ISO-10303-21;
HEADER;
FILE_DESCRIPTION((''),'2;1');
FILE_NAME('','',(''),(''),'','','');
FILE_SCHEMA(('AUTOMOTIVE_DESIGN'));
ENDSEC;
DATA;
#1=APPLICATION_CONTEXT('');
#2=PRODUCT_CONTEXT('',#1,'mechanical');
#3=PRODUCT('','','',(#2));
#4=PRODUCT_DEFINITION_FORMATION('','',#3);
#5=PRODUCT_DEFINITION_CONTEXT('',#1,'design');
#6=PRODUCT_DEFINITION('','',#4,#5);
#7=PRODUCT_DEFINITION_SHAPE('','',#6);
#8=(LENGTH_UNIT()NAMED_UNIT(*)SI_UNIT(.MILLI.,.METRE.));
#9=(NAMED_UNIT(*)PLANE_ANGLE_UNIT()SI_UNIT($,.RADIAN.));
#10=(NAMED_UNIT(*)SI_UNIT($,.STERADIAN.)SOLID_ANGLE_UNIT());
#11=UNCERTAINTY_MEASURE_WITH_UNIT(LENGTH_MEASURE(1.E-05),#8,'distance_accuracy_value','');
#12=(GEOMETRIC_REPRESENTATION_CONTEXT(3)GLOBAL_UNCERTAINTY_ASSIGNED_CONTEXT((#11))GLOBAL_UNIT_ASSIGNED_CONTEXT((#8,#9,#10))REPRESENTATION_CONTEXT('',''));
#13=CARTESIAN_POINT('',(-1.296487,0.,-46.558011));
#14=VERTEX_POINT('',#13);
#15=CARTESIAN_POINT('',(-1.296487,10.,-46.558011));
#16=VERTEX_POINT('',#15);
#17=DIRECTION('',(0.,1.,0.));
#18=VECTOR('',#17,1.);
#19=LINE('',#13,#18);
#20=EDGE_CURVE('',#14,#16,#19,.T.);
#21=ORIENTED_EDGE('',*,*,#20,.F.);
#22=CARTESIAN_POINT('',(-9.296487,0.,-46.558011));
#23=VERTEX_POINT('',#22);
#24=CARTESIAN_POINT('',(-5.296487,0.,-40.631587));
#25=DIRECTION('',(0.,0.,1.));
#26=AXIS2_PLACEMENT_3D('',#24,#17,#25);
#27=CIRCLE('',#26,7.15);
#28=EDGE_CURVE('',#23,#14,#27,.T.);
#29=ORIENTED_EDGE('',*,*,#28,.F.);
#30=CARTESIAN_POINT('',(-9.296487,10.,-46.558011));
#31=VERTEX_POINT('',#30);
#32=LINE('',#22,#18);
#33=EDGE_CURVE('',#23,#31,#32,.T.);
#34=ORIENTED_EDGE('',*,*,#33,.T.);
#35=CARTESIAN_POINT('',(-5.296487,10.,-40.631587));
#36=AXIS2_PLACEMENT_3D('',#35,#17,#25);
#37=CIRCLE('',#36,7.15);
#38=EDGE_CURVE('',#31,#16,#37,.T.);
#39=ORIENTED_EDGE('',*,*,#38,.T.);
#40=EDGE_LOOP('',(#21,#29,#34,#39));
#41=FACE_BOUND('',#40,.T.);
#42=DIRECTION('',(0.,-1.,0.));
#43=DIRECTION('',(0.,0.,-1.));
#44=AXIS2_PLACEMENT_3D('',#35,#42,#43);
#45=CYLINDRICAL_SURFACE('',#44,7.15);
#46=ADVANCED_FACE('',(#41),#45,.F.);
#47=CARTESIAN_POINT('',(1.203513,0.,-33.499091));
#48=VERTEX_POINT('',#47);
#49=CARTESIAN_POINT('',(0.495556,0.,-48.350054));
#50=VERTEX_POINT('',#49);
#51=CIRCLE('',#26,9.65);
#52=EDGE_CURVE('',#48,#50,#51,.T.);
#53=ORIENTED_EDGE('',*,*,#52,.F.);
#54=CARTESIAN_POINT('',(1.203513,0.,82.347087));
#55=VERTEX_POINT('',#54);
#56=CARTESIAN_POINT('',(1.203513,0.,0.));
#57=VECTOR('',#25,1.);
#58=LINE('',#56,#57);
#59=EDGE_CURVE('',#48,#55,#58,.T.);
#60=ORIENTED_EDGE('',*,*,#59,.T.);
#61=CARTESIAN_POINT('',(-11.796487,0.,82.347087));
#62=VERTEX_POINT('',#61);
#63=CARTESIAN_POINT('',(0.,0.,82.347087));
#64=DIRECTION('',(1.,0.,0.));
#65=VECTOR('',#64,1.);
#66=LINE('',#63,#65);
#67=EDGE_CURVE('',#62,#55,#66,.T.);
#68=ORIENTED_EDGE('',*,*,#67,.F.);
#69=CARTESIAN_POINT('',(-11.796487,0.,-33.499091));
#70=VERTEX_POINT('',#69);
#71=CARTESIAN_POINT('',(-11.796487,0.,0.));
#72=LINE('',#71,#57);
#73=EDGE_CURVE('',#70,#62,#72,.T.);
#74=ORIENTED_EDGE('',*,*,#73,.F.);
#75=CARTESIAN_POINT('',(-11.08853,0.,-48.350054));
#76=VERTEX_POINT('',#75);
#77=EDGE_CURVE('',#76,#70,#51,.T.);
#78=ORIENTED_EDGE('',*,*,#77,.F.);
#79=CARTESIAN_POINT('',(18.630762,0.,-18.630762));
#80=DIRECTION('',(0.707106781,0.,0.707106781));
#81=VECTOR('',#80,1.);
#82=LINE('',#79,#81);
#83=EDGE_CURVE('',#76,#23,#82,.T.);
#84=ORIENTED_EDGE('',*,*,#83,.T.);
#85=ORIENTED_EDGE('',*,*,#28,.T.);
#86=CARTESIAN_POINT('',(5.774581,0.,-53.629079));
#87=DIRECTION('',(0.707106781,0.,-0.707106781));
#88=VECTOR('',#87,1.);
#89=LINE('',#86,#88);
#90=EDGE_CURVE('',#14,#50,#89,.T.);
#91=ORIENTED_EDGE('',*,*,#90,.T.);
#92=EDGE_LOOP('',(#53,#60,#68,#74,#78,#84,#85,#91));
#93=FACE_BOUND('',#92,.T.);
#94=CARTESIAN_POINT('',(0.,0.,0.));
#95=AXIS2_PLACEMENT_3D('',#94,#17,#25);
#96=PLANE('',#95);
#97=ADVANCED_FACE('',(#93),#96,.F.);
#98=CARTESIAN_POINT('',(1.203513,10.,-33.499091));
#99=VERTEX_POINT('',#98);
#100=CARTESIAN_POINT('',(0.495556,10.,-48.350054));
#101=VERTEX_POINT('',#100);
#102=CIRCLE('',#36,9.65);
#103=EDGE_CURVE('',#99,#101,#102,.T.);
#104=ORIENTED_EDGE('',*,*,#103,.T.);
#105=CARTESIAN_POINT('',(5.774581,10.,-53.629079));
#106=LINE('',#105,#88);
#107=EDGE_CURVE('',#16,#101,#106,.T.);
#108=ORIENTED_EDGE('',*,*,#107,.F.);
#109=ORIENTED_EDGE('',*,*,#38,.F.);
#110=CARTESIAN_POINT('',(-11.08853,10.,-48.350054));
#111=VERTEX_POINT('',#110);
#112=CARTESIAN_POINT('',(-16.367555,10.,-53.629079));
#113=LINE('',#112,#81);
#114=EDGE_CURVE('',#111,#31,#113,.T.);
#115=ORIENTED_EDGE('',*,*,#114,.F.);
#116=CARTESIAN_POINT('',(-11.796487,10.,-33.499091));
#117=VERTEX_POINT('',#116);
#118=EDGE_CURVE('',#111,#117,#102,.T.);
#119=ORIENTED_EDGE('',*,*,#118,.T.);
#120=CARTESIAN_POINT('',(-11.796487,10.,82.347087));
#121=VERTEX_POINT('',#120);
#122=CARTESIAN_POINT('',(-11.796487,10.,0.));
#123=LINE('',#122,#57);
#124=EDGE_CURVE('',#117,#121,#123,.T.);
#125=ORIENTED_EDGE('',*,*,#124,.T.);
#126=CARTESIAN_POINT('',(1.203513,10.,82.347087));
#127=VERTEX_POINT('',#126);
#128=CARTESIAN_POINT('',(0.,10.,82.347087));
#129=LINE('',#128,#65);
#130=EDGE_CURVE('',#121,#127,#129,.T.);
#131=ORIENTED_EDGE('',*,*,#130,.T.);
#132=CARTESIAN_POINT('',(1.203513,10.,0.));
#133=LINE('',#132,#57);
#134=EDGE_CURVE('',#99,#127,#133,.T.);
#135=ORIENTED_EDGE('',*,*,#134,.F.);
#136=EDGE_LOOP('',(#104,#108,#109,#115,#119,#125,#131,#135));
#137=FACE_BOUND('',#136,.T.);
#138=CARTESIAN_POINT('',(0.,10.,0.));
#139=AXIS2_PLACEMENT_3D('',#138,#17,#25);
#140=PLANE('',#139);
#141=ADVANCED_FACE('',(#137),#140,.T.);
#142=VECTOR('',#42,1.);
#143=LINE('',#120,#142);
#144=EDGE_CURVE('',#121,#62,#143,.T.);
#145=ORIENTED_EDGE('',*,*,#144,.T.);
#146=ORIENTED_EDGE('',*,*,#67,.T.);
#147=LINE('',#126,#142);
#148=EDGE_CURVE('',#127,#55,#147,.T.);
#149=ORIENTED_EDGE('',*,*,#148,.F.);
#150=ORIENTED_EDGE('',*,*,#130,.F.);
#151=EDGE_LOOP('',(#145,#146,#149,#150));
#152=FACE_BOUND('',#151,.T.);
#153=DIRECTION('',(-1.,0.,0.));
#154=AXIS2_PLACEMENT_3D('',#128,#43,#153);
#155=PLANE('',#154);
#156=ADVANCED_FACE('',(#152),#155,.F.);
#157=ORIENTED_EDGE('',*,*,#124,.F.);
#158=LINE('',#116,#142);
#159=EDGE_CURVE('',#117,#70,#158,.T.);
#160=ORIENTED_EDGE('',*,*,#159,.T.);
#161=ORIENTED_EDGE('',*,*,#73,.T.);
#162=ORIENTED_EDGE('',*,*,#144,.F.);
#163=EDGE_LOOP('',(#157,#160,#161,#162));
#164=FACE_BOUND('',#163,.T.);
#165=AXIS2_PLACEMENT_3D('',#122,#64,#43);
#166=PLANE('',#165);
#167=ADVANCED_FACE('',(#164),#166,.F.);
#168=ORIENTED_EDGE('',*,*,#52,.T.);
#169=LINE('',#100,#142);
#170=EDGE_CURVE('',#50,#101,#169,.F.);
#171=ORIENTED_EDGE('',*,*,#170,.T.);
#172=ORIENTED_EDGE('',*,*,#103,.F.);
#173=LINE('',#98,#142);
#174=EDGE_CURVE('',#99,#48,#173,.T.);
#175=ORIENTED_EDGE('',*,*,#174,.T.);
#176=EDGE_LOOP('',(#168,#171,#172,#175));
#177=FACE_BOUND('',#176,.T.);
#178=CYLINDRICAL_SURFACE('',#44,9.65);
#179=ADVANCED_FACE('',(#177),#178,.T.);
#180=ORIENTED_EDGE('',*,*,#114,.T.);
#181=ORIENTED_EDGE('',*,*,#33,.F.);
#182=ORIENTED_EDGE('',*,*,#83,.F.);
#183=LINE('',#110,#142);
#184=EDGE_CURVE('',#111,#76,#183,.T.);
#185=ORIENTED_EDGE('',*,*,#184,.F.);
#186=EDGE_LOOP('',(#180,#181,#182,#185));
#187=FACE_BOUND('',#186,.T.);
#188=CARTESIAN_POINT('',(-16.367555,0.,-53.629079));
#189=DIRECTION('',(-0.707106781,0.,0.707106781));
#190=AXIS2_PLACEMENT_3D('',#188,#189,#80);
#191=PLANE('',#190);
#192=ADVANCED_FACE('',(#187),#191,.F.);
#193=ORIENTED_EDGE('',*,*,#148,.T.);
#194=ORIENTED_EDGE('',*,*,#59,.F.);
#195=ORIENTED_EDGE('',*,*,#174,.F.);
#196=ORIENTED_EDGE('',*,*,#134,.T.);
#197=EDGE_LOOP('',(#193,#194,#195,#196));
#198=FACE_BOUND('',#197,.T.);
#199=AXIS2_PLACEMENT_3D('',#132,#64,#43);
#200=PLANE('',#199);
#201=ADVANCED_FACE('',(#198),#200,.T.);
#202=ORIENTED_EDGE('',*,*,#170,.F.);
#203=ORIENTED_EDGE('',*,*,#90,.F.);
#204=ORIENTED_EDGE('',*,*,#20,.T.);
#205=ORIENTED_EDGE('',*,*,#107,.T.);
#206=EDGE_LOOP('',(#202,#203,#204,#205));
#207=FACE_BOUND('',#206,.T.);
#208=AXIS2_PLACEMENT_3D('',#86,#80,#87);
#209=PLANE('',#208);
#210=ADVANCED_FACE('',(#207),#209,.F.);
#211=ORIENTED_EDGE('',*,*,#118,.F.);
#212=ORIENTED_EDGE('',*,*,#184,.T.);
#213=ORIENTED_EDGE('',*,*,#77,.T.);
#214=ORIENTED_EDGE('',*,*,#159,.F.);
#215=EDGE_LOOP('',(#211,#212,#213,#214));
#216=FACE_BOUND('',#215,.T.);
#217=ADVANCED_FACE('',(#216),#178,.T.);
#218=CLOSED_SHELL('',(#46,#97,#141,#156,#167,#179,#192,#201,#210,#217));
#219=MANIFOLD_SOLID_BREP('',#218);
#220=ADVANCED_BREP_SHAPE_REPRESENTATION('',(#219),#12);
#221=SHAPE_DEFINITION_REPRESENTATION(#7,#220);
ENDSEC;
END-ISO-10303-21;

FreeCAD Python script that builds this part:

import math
import FreeCAD as App
import Part
import Sketcher
from FreeCAD import Vector


def add_polygon(sketch, points):
    """Adds a closed chain of lines whose ends are joined by coincident constraints."""
    first, n = sketch.GeometryCount, len(points)
    for a, b in zip(points, points[1:] + points[:1]):
        sketch.addGeometry(Part.LineSegment(App.Vector(*a, 0), App.Vector(*b, 0)), False)
    for i in range(n):
        sketch.addConstraint(Sketcher.Constraint("Coincident", first + i, 2, first + (i + 1) % n, 1))

doc = App.newDocument("Part")
params = doc.addObject("Spreadsheet::Sheet", "Params")
for row, (alias, value) in enumerate([
    ("sketch1_width", "13 mm"),
    ("sketch1_radius", "9.65 mm"),
    ("sketch1_radius2", "7.15 mm"),
    ("pad1_length", "10 mm"),
    ("sketch2_width", "8 mm"),
    ("sketch2_length", "10 mm"),
], start=1):
    params.set(f"A{row}", alias)
    params.set(f"B{row}", "=" + value)
    params.setAlias(f"B{row}", alias)

body = doc.addObject("PartDesign::Body", "Body")

# Sketch on XZ plane
sketch1 = body.newObject("Sketcher::SketchObject", "Sketch")
sketch1.AttachmentSupport = (doc.getObject("XZ_Plane"), [""])
sketch1.MapMode = "FlatFace"
sketch1.addGeometry([
    Part.LineSegment(Vector(1.2, 82.3, 0), Vector(1.2, -33.5, 0)),  # 0
    Part.ArcOfCircle(Part.Circle(Vector(-5.3, -40.6, 0), Vector(0, 0, 1), 9.7), math.radians(0), math.radians(48)),  # 1
    Part.ArcOfCircle(Part.Circle(Vector(-5.3, -40.6, 0), Vector(0, 0, 1), 9.7), math.radians(132), math.radians(360)),  # 2
    Part.LineSegment(Vector(-11.8, -33.5, 0), Vector(-11.8, 82.3, 0)),  # 3
    Part.LineSegment(Vector(-11.8, 82.3, 0), Vector(1.2, 82.3, 0)),  # 4
    Part.ArcOfCircle(Part.Circle(Vector(-5.3, -40.6, 0), Vector(0, 0, 1), 7.1), math.radians(25), math.radians(155)),  # 5
    Part.ArcOfCircle(Part.Circle(Vector(-5.3, -40.6, 0), Vector(0, 0, 1), 7.2), math.radians(155), math.radians(360)),  # 6
    Part.ArcOfCircle(Part.Circle(Vector(-5.3, -40.6, 0), Vector(0, 0, 1), 7.1), math.radians(0), math.radians(25)),  # 7
], False)
sketch1.addConstraint([
    Sketcher.Constraint("Coincident", 0, 2, 1, 2),
    Sketcher.Constraint("Tangent", 1, 1, 2, 2),
    Sketcher.Constraint("Coincident", 2, 1, 3, 1),
    Sketcher.Constraint("Coincident", 3, 2, 4, 1),
    Sketcher.Constraint("Coincident", 4, 2, 0, 1),
    Sketcher.Constraint("Tangent", 5, 2, 6, 1),
    Sketcher.Constraint("Tangent", 6, 2, 7, 1),
    Sketcher.Constraint("Tangent", 7, 2, 5, 1),
    Sketcher.Constraint("Vertical", 0),
    Sketcher.Constraint("Vertical", 3),
    Sketcher.Constraint("Horizontal", 4),
    Sketcher.Constraint("Coincident", 5, 3, 1, 3),
    Sketcher.Constraint("Equal", 1, 2),
    Sketcher.Constraint("Horizontal", 7, 3, 1, 1),
    Sketcher.Constraint("Horizontal", 0, 2, 2, 1),
    Sketcher.Constraint("Horizontal", 1, 1, 6, 2),
    Sketcher.Constraint("Horizontal", 5, 2, 7, 2),
    Sketcher.Constraint("Vertical", 3, 2, 5, 2),
    Sketcher.Constraint("DistanceX", 4, 1, 4, 2, 13.0),
    Sketcher.Constraint("Radius", 1, 9.65),
    Sketcher.Constraint("Radius", 5, 7.15),
    Sketcher.Constraint("DistanceY", 0, 2, 0, 1, 115.846178),
    Sketcher.Constraint("DistanceY", 0, 2, -1, 1, 33.499091),
    Sketcher.Constraint("DistanceX", 1, 3, -1, 1, 5.296487),
])
sketch1.setExpression("Constraints[18]", "Params.sketch1_width")
sketch1.setExpression("Constraints[19]", "Params.sketch1_radius")
sketch1.setExpression("Constraints[20]", "Params.sketch1_radius2")
pad1 = body.newObject("PartDesign::Pad", "Pad")
pad1.Profile = sketch1
pad1.setExpression("Length", "Params.pad1_length")
pad1.Reversed = True

# Sketch on XZ plane
sketch2 = body.newObject("Sketcher::SketchObject", "Sketch001")
sketch2.AttachmentSupport = (doc.getObject("XZ_Plane"), [""])
sketch2.MapMode = "FlatFace"
sketch2.AttachmentOffset = App.Placement(Vector(0, 0, -10), App.Rotation())
add_polygon(sketch2, [(6, -54), (-16, -54), (-9, -47), (-1, -47)])  # lines 0-3
sketch2.addConstraint([
    Sketcher.Constraint("Horizontal", 0),
    Sketcher.Constraint("Horizontal", 2),
    Sketcher.Constraint("Perpendicular", 1, 3),
    Sketcher.Constraint("Equal", 1, 3),
    Sketcher.Constraint("DistanceX", 2, 1, 2, 2, 8.0),
    Sketcher.Constraint("Distance", 1, 10.0),
    Sketcher.Constraint("DistanceY", 0, 2, -1, 1, 53.629079),
    Sketcher.Constraint("DistanceX", -1, 1, 3, 2, 5.774581),
])
sketch2.setExpression("Constraints[8]", "Params.sketch2_width")
sketch2.setExpression("Constraints[9]", "Params.sketch2_length")
pocket1 = body.newObject("PartDesign::Pocket", "Pocket")
pocket1.Profile = sketch2
pocket1.Type = "ThroughAll"
pocket1.Reversed = True

doc.recompute()
